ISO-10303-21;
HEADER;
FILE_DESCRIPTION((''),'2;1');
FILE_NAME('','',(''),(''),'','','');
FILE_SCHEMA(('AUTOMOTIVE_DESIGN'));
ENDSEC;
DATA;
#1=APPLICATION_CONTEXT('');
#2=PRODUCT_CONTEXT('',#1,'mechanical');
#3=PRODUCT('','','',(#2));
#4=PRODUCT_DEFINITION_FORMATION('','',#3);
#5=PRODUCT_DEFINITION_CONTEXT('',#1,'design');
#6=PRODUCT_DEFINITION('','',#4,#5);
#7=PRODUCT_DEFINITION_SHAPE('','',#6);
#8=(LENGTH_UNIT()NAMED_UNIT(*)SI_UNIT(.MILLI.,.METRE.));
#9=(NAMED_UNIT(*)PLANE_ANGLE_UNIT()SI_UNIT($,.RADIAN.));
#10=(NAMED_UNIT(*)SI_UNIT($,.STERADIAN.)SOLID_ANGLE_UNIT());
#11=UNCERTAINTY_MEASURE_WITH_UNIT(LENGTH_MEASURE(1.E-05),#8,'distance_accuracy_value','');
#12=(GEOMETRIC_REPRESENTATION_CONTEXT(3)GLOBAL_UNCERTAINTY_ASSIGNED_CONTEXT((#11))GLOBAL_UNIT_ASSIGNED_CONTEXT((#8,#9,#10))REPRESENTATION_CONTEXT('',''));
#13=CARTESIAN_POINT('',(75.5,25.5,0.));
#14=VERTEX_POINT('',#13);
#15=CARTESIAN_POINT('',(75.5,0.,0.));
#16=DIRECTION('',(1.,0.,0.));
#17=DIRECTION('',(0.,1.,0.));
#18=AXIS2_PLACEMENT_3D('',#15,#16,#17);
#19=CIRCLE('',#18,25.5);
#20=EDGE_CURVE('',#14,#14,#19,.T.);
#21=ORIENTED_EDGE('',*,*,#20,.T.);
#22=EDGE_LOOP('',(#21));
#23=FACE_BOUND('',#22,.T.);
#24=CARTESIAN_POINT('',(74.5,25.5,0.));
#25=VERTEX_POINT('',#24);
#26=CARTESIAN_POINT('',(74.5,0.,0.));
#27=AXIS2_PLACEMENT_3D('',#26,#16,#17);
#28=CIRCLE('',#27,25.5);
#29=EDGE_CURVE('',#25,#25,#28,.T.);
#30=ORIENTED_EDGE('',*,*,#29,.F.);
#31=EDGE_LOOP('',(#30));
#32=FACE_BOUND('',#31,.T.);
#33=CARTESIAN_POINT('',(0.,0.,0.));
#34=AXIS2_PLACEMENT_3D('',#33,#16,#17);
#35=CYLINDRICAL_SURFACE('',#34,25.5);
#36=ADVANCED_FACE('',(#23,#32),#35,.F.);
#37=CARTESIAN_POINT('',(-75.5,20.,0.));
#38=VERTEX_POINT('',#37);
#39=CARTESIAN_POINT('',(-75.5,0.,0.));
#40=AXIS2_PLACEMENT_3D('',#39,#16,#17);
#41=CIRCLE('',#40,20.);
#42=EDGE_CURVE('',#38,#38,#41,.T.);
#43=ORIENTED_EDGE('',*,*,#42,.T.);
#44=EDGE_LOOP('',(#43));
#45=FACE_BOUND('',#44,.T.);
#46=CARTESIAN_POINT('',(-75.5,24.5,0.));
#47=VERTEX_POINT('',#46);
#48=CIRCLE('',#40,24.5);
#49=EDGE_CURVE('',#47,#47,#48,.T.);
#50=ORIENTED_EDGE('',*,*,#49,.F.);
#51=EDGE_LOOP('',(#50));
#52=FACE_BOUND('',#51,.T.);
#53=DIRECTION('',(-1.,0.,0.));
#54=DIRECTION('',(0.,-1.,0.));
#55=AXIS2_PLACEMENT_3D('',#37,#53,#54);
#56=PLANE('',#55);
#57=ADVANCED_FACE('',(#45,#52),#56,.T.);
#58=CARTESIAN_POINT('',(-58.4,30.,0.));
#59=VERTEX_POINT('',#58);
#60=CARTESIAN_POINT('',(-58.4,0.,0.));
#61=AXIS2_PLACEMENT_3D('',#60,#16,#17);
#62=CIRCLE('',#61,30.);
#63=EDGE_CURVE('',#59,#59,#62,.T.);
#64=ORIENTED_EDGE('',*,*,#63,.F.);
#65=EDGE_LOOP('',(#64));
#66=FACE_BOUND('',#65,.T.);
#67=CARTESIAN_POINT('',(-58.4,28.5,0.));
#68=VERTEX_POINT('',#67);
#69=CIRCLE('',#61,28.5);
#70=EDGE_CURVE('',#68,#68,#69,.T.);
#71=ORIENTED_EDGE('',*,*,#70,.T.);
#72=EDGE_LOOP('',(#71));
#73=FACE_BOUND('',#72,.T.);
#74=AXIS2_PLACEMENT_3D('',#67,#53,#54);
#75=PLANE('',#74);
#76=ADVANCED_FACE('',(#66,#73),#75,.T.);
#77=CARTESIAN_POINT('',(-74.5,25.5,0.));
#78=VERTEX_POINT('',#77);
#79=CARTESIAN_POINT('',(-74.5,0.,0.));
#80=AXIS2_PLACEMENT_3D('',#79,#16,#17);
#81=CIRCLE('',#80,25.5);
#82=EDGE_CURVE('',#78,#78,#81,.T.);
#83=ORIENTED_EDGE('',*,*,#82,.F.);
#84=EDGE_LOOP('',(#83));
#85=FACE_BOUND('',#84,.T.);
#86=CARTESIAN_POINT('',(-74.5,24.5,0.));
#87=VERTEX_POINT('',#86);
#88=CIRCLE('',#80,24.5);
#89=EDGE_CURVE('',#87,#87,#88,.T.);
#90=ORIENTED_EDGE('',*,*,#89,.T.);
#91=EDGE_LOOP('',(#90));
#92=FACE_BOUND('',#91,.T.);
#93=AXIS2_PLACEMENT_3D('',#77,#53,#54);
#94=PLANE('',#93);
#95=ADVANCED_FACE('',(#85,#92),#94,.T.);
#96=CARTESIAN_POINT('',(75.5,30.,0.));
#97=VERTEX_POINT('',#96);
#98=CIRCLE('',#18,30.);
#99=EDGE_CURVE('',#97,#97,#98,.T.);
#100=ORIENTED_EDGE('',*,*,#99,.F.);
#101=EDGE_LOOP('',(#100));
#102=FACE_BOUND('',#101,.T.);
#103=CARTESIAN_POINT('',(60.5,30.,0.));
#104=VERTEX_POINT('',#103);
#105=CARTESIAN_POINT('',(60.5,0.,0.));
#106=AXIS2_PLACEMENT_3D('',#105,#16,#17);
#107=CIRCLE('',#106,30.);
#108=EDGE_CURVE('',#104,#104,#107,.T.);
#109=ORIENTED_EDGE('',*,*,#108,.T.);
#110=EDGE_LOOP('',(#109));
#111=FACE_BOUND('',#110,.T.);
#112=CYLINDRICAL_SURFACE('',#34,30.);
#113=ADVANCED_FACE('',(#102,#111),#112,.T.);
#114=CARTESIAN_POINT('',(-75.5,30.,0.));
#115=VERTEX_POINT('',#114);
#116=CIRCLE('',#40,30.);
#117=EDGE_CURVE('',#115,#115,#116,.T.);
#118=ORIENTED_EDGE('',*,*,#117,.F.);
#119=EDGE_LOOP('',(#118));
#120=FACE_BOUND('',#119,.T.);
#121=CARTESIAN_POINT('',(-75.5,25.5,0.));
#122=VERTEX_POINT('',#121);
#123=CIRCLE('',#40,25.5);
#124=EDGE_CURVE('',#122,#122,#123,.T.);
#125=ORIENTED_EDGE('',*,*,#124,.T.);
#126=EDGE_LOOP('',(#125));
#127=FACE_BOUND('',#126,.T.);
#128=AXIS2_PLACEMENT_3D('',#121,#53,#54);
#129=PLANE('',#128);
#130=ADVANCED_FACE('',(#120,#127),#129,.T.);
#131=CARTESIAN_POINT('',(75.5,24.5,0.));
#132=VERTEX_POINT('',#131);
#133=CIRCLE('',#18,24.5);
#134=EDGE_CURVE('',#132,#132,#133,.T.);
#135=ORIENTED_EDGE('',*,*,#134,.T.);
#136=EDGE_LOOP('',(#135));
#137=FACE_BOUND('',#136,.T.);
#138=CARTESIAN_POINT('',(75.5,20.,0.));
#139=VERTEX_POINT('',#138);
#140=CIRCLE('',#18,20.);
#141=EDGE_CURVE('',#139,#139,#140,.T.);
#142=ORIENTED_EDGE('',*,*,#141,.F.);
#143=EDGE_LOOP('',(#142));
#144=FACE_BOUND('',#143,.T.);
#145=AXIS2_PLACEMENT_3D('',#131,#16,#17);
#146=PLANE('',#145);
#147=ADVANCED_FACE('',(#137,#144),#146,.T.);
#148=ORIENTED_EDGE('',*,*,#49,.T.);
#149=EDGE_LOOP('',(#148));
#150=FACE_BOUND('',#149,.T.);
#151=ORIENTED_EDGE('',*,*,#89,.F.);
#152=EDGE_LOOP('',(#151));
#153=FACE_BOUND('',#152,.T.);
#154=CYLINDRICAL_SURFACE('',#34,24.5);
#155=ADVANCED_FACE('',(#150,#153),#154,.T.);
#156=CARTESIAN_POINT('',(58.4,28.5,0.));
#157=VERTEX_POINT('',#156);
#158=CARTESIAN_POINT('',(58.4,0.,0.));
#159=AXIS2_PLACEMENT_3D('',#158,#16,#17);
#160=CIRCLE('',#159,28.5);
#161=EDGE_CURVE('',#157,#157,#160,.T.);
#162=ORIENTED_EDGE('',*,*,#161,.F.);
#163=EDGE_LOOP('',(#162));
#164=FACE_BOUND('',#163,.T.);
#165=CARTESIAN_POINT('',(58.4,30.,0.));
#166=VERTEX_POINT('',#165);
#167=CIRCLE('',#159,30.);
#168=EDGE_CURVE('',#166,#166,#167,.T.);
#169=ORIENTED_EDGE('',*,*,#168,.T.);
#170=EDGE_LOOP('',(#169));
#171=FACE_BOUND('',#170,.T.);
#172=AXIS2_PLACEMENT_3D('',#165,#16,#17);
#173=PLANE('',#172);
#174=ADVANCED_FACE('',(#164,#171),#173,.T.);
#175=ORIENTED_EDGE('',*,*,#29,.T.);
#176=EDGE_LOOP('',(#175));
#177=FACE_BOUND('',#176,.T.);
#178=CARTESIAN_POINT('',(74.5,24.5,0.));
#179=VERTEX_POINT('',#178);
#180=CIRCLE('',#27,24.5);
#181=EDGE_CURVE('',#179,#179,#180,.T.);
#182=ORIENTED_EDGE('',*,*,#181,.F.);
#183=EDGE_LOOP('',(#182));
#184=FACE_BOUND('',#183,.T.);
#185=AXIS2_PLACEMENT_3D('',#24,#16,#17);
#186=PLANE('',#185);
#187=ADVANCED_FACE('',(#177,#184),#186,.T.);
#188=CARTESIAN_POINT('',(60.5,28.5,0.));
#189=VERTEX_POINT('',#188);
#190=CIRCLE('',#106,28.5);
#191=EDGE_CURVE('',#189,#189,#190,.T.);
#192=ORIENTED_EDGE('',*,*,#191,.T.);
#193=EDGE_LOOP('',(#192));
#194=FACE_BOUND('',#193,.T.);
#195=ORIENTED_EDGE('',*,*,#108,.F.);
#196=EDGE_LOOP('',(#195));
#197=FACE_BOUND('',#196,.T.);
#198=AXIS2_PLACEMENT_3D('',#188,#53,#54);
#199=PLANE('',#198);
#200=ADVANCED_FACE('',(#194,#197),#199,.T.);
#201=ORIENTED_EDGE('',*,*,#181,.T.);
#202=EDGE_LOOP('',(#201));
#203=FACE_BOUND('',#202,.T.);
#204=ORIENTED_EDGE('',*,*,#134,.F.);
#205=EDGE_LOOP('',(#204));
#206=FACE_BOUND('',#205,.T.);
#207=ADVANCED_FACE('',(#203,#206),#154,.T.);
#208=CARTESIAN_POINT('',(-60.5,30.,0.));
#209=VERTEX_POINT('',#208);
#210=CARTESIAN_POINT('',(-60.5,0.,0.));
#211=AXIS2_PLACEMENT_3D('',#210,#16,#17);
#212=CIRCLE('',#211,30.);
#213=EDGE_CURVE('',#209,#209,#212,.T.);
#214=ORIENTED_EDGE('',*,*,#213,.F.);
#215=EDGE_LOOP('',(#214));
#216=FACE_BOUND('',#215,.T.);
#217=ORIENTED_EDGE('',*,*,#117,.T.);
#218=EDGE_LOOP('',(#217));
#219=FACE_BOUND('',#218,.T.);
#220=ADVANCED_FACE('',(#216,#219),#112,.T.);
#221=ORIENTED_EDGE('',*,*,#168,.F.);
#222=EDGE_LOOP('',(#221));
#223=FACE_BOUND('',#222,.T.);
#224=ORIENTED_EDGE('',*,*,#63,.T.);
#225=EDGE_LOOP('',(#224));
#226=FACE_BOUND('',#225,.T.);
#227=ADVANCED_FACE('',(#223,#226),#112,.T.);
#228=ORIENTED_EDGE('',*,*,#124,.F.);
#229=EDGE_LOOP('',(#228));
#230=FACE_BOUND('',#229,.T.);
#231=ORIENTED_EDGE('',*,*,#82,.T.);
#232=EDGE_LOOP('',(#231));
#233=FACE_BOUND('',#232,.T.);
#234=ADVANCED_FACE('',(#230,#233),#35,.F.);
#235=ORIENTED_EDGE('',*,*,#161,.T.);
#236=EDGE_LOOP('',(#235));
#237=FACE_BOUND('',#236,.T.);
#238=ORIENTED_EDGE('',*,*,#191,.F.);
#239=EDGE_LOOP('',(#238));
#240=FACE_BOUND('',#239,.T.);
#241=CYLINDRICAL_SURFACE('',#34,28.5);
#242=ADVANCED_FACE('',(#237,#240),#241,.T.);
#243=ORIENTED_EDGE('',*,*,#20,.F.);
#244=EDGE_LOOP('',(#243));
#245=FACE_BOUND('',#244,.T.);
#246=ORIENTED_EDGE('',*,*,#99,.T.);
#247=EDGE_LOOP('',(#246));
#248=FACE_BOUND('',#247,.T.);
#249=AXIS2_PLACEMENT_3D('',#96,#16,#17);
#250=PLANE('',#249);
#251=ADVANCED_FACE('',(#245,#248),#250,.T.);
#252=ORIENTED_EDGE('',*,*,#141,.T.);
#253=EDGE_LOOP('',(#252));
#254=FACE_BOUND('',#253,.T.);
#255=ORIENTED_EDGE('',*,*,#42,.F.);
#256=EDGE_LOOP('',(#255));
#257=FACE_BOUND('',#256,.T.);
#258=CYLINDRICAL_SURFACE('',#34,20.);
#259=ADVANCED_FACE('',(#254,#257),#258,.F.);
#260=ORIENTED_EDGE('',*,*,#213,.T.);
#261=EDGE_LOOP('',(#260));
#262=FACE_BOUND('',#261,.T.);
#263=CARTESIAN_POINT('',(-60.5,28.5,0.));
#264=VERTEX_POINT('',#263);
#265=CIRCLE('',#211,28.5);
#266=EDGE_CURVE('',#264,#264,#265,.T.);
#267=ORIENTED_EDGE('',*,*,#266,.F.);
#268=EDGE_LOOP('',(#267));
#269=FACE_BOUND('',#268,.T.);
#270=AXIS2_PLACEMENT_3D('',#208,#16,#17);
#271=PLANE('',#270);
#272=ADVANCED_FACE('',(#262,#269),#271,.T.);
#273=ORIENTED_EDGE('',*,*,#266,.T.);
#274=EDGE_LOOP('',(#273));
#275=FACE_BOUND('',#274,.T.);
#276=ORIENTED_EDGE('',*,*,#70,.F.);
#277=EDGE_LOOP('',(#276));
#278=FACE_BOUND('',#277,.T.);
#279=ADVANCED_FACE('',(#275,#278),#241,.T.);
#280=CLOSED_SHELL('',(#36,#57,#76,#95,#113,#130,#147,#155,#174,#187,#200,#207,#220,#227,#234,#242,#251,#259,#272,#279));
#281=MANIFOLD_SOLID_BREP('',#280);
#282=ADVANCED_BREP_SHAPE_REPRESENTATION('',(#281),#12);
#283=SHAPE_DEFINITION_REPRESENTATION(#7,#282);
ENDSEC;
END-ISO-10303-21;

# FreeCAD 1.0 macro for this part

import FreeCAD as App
import Part
import Sketcher

doc = App.newDocument("Part")
body = doc.addObject("PartDesign::Body", "Body")

# Sketch on XY plane
sketch1 = body.newObject("Sketcher::SketchObject", "Sketch")
sketch1.AttachmentSupport = (doc.getObject("XY_Plane"), [""])
sketch1.MapMode = "FlatFace"
sketch1.addGeometry([
    Part.LineSegment(App.Vector(-60.5, 30, 0), App.Vector(-75.5, 30, 0)),  # 0
    Part.LineSegment(App.Vector(-75.5, 30, 0), App.Vector(-75.5, 25.5, 0)),  # 1
    Part.LineSegment(App.Vector(-75.5, 25.5, 0), App.Vector(-74.5, 25.5, 0)),  # 2
    Part.LineSegment(App.Vector(-74.5, 25.5, 0), App.Vector(-74.5, 24.5, 0)),  # 3
    Part.LineSegment(App.Vector(-74.5, 24.5, 0), App.Vector(-75.5, 24.5, 0)),  # 4
    Part.LineSegment(App.Vector(-75.5, 24.5, 0), App.Vector(-75.5, 20, 0)),  # 5
    Part.LineSegment(App.Vector(-75.5, 20, 0), App.Vector(75.5, 20, 0)),  # 6
    Part.LineSegment(App.Vector(75.5, 20, 0), App.Vector(75.5, 24.5, 0)),  # 7
    Part.LineSegment(App.Vector(75.5, 24.5, 0), App.Vector(74.5, 24.5, 0)),  # 8
    Part.LineSegment(App.Vector(74.5, 24.5, 0), App.Vector(74.5, 25.5, 0)),  # 9
    Part.LineSegment(App.Vector(74.5, 25.5, 0), App.Vector(75.5, 25.5, 0)),  # 10
    Part.LineSegment(App.Vector(75.5, 25.5, 0), App.Vector(75.5, 30, 0)),  # 11
    Part.LineSegment(App.Vector(75.5, 30, 0), App.Vector(60.5, 30, 0)),  # 12
    Part.LineSegment(App.Vector(60.5, 30, 0), App.Vector(60.5, 28.5, 0)),  # 13
    Part.LineSegment(App.Vector(60.5, 28.5, 0), App.Vector(58.4, 28.5, 0)),  # 14
    Part.LineSegment(App.Vector(58.4, 28.5, 0), App.Vector(58.4, 30, 0)),  # 15
    Part.LineSegment(App.Vector(58.4, 30, 0), App.Vector(-58.4, 30, 0)),  # 16
    Part.LineSegment(App.Vector(-58.4, 30, 0), App.Vector(-58.4, 28.5, 0)),  # 17
    Part.LineSegment(App.Vector(-58.4, 28.5, 0), App.Vector(-60.5, 28.5, 0)),  # 18
    Part.LineSegment(App.Vector(-60.5, 28.5, 0), App.Vector(-60.5, 30, 0)),  # 19
], False)
sketch1.addConstraint([
    Sketcher.Constraint("Coincident", 0, 2, 1, 1),
    Sketcher.Constraint("Coincident", 1, 2, 2, 1),
    Sketcher.Constraint("Coincident", 2, 2, 3, 1),
    Sketcher.Constraint("Coincident", 3, 2, 4, 1),
    Sketcher.Constraint("Coincident", 4, 2, 5, 1),
    Sketcher.Constraint("Coincident", 5, 2, 6, 1),
    Sketcher.Constraint("Coincident", 6, 2, 7, 1),
    Sketcher.Constraint("Coincident", 7, 2, 8, 1),
    Sketcher.Constraint("Coincident", 8, 2, 9, 1),
    Sketcher.Constraint("Coincident", 9, 2, 10, 1),
    Sketcher.Constraint("Coincident", 10, 2, 11, 1),
    Sketcher.Constraint("Coincident", 11, 2, 12, 1),
    Sketcher.Constraint("Coincident", 12, 2, 13, 1),
    Sketcher.Constraint("Coincident", 13, 2, 14, 1),
    Sketcher.Constraint("Coincident", 14, 2, 15, 1),
    Sketcher.Constraint("Coincident", 15, 2, 16, 1),
    Sketcher.Constraint("Coincident", 16, 2, 17, 1),
    Sketcher.Constraint("Coincident", 17, 2, 18, 1),
    Sketcher.Constraint("Coincident", 18, 2, 19, 1),
    Sketcher.Constraint("Coincident", 19, 2, 0, 1),
    Sketcher.Constraint("Horizontal", 0),
    Sketcher.Constraint("Vertical", 1),
    Sketcher.Constraint("Horizontal", 2),
    Sketcher.Constraint("Vertical", 3),
    Sketcher.Constraint("Horizontal", 4),
    Sketcher.Constraint("Vertical", 5),
    Sketcher.Constraint("Horizontal", 6),
    Sketcher.Constraint("Vertical", 7),
    Sketcher.Constraint("Horizontal", 8),
    Sketcher.Constraint("Vertical", 9),
    Sketcher.Constraint("Horizontal", 10),
    Sketcher.Constraint("Vertical", 11),
    Sketcher.Constraint("Horizontal", 12),
    Sketcher.Constraint("Vertical", 13),
    Sketcher.Constraint("Horizontal", 14),
    Sketcher.Constraint("Vertical", 15),
    Sketcher.Constraint("Horizontal", 16),
    Sketcher.Constraint("Vertical", 17),
    Sketcher.Constraint("Horizontal", 18),
    Sketcher.Constraint("Vertical", 19),
    Sketcher.Constraint("Symmetric", 4, 2, 7, 2, -2),
    Sketcher.Constraint("Symmetric", 2, 2, 9, 2, -2),
    Sketcher.Constraint("Symmetric", 0, 2, 11, 2, -2),
    Sketcher.Constraint("Symmetric", 14, 2, 17, 2, -2),
    Sketcher.Constraint("Horizontal", 12, 2, 15, 2),
    Sketcher.Constraint("Vertical", 1, 2, 4, 2),
    Sketcher.Constraint("Equal", 0, 12),
    Sketcher.Constraint("Equal", 10, 3),
    Sketcher.Constraint("Equal", 1, 5),
    Sketcher.Constraint("DistanceX", 0, 2, 0, 1, 15.0),
    Sketcher.Constraint("DistanceX", 2, 1, 2, 2, 1.0),
    Sketcher.Constraint("DistanceX", 6, 1, 6, 2, 151.0),
    Sketcher.Constraint("DistanceX", 14, 2, 14, 1, 2.1),
    Sketcher.Constraint("DistanceY", 1, 2, 1, 1, 4.5),
    Sketcher.Constraint("DistanceY", 13, 2, 13, 1, 1.5),
    Sketcher.Constraint("DistanceY", -1, 1, 0, 2, 30.0),
])
revolution = body.newObject("PartDesign::Revolution", "Revolution")
revolution.Profile = sketch1
revolution.ReferenceAxis = (sketch1, ["H_Axis"])
revolution.Angle = 360

doc.recompute()
